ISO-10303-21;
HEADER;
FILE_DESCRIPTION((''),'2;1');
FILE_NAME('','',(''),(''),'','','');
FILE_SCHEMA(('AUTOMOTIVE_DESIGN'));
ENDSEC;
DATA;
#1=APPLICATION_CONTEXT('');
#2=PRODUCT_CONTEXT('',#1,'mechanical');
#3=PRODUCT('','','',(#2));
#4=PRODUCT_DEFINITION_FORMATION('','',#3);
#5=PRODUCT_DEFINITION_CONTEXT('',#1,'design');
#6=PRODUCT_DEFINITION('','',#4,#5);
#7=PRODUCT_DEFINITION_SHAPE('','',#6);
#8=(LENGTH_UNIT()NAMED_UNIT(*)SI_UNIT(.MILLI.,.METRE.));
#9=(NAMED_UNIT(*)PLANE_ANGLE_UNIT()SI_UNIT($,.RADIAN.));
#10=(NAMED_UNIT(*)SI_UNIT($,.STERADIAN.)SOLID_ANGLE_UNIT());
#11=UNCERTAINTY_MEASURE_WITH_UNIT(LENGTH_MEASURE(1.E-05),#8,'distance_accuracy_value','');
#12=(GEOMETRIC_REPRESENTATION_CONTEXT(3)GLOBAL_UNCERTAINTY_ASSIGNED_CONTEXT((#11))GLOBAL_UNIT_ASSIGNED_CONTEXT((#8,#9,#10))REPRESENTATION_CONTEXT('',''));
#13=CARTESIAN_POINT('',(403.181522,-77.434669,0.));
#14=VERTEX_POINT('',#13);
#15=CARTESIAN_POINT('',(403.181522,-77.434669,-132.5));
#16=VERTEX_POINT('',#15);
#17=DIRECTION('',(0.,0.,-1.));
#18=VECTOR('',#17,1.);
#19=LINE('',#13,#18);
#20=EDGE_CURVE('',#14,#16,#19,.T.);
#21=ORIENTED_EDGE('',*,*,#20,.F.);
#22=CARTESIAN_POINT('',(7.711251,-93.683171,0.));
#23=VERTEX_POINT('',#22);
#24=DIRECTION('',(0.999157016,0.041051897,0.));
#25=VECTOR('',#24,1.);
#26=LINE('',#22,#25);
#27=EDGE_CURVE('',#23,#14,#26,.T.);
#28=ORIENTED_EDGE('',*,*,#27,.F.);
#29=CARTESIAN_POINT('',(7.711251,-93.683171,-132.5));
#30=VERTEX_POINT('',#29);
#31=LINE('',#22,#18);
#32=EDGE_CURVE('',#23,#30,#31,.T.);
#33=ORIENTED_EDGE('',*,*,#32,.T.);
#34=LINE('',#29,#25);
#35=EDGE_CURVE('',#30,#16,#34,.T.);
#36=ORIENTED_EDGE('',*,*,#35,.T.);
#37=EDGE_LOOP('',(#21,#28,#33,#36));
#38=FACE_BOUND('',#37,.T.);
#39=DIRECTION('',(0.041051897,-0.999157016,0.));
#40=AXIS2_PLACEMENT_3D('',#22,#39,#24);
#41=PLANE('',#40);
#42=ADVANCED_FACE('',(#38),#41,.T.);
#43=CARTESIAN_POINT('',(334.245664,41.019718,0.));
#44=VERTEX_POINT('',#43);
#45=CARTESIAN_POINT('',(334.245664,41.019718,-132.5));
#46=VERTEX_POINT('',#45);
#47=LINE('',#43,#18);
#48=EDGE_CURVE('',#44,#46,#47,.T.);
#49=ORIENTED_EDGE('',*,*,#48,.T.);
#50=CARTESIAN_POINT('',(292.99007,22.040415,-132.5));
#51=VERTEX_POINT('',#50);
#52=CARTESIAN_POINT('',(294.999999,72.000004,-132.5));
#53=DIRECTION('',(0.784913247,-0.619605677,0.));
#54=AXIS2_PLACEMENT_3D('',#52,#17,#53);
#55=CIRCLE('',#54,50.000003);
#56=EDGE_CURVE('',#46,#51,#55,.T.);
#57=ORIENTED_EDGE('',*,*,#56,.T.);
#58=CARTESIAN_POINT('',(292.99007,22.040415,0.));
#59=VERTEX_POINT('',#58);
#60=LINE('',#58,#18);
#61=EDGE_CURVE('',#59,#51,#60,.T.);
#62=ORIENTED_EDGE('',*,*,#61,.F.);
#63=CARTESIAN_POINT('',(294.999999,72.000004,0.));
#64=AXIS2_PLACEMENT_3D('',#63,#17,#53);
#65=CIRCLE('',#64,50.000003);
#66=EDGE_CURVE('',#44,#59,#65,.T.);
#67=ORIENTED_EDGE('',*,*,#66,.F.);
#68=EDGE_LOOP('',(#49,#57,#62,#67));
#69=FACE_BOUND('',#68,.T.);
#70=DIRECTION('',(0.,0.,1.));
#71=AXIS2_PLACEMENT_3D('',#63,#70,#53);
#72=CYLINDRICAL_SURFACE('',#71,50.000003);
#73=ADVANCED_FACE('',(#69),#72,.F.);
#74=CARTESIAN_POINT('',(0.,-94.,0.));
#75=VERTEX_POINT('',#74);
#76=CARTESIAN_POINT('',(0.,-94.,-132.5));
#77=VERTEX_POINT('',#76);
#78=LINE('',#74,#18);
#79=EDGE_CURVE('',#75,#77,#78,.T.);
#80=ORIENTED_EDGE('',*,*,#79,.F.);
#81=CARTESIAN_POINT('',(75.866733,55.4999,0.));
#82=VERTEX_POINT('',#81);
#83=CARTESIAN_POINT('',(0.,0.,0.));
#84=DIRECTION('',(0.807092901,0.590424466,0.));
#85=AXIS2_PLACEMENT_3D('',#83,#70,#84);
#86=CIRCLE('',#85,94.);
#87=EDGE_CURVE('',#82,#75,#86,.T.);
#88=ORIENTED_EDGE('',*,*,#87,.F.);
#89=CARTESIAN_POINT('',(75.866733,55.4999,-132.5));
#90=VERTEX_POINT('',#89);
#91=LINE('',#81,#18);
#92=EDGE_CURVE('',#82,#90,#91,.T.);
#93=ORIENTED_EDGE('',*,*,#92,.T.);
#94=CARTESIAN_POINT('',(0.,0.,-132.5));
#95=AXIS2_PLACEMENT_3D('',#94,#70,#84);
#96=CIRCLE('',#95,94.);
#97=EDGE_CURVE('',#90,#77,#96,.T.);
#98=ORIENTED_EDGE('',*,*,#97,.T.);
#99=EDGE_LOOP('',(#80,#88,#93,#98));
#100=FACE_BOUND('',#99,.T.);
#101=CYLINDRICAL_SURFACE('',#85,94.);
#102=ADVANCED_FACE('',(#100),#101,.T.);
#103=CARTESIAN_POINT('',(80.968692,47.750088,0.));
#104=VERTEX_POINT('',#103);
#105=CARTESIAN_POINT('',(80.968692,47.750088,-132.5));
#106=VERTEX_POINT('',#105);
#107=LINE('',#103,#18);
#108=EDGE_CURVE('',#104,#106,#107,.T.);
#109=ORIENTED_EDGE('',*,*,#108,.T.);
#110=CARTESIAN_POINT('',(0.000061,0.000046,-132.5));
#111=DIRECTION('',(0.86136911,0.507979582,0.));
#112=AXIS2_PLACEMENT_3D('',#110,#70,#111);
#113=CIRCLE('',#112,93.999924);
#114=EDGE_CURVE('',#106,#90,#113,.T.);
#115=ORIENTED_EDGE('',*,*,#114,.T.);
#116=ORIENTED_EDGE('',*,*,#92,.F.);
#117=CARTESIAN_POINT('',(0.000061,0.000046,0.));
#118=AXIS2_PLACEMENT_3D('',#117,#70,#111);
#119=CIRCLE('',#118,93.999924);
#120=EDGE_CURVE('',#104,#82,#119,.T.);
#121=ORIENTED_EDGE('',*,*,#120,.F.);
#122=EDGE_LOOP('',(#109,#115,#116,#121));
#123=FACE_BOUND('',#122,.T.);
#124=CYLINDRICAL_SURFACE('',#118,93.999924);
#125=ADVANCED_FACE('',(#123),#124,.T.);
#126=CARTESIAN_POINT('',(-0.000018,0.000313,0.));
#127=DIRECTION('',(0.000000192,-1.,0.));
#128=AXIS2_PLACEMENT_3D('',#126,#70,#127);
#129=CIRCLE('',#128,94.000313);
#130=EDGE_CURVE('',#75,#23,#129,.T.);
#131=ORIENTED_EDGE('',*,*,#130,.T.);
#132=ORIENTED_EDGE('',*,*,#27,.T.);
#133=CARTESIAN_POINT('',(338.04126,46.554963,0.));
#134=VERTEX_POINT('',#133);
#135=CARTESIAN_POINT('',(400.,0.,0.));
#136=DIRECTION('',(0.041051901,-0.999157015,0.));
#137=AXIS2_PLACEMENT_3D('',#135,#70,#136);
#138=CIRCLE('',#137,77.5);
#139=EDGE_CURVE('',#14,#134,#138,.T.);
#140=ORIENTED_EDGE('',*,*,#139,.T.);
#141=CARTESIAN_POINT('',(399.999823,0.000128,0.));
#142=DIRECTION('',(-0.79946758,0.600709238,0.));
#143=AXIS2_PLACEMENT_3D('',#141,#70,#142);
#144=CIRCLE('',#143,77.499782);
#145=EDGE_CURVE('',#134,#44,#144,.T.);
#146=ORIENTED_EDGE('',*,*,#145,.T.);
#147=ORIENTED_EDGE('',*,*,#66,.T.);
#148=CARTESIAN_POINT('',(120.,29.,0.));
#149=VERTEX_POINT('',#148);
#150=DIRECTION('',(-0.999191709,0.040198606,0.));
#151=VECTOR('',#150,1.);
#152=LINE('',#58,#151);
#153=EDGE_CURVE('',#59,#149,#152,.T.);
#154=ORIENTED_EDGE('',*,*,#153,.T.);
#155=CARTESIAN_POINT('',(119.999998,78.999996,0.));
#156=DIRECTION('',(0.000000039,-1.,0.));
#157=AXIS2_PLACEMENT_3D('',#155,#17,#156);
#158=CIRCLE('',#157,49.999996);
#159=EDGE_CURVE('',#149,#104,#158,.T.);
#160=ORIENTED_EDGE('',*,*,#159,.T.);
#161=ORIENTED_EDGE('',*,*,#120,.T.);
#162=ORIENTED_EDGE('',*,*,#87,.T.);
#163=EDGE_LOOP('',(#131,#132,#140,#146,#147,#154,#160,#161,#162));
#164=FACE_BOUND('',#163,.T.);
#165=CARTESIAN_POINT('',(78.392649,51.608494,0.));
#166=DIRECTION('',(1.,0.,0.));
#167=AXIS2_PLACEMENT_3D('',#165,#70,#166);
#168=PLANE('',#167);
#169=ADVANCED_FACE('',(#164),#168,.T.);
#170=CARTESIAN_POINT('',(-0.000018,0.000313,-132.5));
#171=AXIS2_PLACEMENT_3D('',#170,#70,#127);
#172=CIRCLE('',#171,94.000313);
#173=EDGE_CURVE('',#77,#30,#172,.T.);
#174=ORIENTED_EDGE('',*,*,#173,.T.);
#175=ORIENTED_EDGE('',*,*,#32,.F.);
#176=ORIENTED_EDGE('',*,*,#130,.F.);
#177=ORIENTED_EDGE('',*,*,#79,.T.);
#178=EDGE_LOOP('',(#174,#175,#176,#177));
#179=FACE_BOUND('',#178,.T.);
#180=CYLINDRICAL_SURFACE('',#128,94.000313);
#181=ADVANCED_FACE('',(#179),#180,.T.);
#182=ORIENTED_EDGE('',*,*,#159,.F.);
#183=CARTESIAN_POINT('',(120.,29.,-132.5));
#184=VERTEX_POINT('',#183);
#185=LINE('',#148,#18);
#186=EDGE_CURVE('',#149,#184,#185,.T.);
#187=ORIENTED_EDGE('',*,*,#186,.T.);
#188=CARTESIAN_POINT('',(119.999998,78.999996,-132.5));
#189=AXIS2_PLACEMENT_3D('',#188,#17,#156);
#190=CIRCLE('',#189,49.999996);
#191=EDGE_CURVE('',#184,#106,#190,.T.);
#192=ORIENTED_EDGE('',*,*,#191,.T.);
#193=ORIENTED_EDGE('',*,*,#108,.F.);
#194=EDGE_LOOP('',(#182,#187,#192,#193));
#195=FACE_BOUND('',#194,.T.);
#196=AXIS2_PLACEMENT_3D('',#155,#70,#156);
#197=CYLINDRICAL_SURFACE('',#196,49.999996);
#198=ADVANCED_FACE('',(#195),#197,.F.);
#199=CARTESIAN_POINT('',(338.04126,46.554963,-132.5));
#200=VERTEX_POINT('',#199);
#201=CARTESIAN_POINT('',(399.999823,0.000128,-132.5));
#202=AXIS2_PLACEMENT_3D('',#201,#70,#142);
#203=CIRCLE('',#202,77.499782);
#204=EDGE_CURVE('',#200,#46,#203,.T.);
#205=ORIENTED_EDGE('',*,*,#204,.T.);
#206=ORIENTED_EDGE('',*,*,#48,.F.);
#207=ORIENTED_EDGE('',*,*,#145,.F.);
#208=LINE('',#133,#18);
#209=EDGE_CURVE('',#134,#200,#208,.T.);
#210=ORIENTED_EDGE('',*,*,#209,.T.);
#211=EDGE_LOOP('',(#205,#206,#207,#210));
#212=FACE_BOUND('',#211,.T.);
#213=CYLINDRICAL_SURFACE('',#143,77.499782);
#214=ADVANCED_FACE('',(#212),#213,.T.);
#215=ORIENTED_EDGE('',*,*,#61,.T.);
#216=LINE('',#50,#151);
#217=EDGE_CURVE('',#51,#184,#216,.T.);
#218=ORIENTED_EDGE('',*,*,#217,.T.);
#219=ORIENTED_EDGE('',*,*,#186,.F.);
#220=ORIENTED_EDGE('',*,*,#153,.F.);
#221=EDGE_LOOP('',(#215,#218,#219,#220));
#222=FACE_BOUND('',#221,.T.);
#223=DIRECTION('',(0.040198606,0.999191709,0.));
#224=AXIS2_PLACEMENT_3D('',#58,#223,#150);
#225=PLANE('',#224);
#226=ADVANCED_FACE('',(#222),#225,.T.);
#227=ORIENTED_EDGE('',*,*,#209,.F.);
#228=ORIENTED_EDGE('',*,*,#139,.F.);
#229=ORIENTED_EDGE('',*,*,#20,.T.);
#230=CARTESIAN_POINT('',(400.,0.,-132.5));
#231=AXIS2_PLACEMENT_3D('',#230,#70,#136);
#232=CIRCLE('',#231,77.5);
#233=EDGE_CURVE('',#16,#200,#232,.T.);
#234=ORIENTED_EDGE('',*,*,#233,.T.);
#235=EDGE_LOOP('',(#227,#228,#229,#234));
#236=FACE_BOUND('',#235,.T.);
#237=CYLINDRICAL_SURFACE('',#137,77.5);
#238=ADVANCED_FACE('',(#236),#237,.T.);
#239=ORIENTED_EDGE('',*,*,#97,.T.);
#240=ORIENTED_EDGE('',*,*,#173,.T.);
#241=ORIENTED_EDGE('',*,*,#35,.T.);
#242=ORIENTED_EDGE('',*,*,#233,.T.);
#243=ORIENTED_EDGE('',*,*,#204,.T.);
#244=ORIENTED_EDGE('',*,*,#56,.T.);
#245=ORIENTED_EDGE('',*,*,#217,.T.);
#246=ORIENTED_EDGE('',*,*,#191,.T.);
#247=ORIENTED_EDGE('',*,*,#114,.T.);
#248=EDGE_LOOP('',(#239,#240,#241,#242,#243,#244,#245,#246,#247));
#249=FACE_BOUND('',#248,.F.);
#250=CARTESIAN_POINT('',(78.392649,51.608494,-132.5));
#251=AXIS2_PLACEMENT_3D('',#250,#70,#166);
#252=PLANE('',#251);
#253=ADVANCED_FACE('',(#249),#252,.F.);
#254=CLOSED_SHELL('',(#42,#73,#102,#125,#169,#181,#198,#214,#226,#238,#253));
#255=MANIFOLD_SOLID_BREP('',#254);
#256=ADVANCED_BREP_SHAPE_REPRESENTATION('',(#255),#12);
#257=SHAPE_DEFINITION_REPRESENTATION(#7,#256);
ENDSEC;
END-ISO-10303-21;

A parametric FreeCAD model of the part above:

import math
import FreeCAD as App
import Part
import Sketcher

doc = App.newDocument("Part")
body = doc.addObject("PartDesign::Body", "Body")

sketch1 = doc.addObject("Sketcher::SketchObject", "Sketch")
body.addObject(sketch1)
sketch1.AttachmentSupport = (doc.XY_Plane, [""])
sketch1.MapMode = "FlatFace"
sketch1.addGeometry(Part.ArcOfCircle(Part.Circle(App.Vector(0.000061, 0.000046, 0), App.Vector(0, 0, 1), 93.999924), math.radians(30.529344), math.radians(36.187135)), False)
sketch1.addGeometry(Part.ArcOfCircle(Part.Circle(App.Vector(0, 0, 0), App.Vector(0, 0, 1), 94), math.radians(36.187135), math.radians(270)), False)
sketch1.addGeometry(Part.ArcOfCircle(Part.Circle(App.Vector(-0.000018, 0.000313, 0), App.Vector(0, 0, 1), 94.000313), math.radians(-89.999989), math.radians(-85.294481)), False)
sketch1.addGeometry(Part.LineSegment(App.Vector(7.711251, -93.683171, 0), App.Vector(403.181522, -77.434669, 0)), False)
sketch1.addGeometry(Part.ArcOfCircle(Part.Circle(App.Vector(400, 0, 0), App.Vector(0, 0, 1), 77.5), math.radians(-87.647238), math.radians(143.079293)), False)
sketch1.addGeometry(Part.ArcOfCircle(Part.Circle(App.Vector(399.999823, 0.000128, 0), App.Vector(0, 0, 1), 77.499782), math.radians(143.07929), math.radians(148.042739)), False)
sketch1.addGeometry(Part.ArcOfCircle(Part.Circle(App.Vector(294.999999, 72.000004, 0), App.Vector(0, 0, 1), 50.000003), math.radians(-92.303829), math.radians(-38.287345)), False)
sketch1.addGeometry(Part.LineSegment(App.Vector(292.99007, 22.040415, 0), App.Vector(120, 29, 0)), False)
sketch1.addGeometry(Part.ArcOfCircle(Part.Circle(App.Vector(119.999998, 78.999996, 0), App.Vector(0, 0, 1), 49.999996), math.radians(-141.317944), math.radians(-89.999998)), False)
sketch1.addConstraint(Sketcher.Constraint("Coincident", 0, 2, 1, 1))
sketch1.addConstraint(Sketcher.Constraint("Coincident", 1, 2, 2, 1))
sketch1.addConstraint(Sketcher.Constraint("Coincident", 2, 2, 3, 1))
sketch1.addConstraint(Sketcher.Constraint("Coincident", 3, 2, 4, 1))
sketch1.addConstraint(Sketcher.Constraint("Coincident", 4, 2, 5, 1))
sketch1.addConstraint(Sketcher.Constraint("Coincident", 5, 2, 6, 2))
sketch1.addConstraint(Sketcher.Constraint("Coincident", 6, 1, 7, 1))
sketch1.addConstraint(Sketcher.Constraint("Coincident", 7, 2, 8, 2))
sketch1.addConstraint(Sketcher.Constraint("Coincident", 8, 1, 0, 1))
sketch1.addConstraint(Sketcher.Constraint("Coincident", 1, 3, -1, 1))
sketch1.addConstraint(Sketcher.Constraint("PointOnObject", 4, 3, -1))
sketch1.addConstraint(Sketcher.Constraint("PointOnObject", 1, 2, -2))
sketch1.addConstraint(Sketcher.Constraint("Radius", 1, 94.0))
sketch1.addConstraint(Sketcher.Constraint("Radius", 4, 77.5))
sketch1.addConstraint(Sketcher.Constraint("DistanceX", -1, 1, 4, 3, 400.0))
sketch1.addConstraint(Sketcher.Constraint("DistanceX", -1, 1, 6, 3, 294.999999))
sketch1.addConstraint(Sketcher.Constraint("DistanceX", -1, 1, 8, 3, 119.999998))
sketch1.addConstraint(Sketcher.Constraint("DistanceX", -1, 1, 7, 2, 120.0))
sketch1.addConstraint(Sketcher.Constraint("DistanceY", -1, 1, 7, 2, 29.0))
sketch1.addConstraint(Sketcher.Constraint("Radius", 0, 93.999924))
sketch1.addConstraint(Sketcher.Constraint("Radius", 2, 94.000313))
sketch1.addConstraint(Sketcher.Constraint("Radius", 5, 77.499782))
sketch1.addConstraint(Sketcher.Constraint("Radius", 6, 50.000003))
sketch1.addConstraint(Sketcher.Constraint("Radius", 8, 49.999996))
sketch1.addConstraint(Sketcher.Constraint("DistanceY", -1, 1, 0, 2, 55.4999))
sketch1.addConstraint(Sketcher.Constraint("DistanceX", 5, 3, 3, 2, 3.181699))
sketch1.addConstraint(Sketcher.Constraint("Distance", 7, 173.130009))
sketch1.addConstraint(Sketcher.Constraint("DistanceX", -1, 1, 2, 2, 7.711251))
sketch1.addConstraint(Sketcher.Constraint("DistanceY", 2, 2, -1, 1, 93.683171))
sketch1.addConstraint(Sketcher.Constraint("DistanceX", -1, 1, 3, 2, 403.181522))
sketch1.addConstraint(Sketcher.Constraint("DistanceX", -1, 1, 4, 2, 338.04126))
sketch1.addConstraint(Sketcher.Constraint("DistanceX", -1, 1, 8, 1, 80.968692))
sketch1.addConstraint(Sketcher.Constraint("DistanceY", 0, 3, 6, 3, 71.999958))
pad1 = doc.addObject("PartDesign::Pad", "Pad")
body.addObject(pad1)
pad1.Profile = sketch1
pad1.Length = 132.5
pad1.Reversed = True

doc.recompute()
